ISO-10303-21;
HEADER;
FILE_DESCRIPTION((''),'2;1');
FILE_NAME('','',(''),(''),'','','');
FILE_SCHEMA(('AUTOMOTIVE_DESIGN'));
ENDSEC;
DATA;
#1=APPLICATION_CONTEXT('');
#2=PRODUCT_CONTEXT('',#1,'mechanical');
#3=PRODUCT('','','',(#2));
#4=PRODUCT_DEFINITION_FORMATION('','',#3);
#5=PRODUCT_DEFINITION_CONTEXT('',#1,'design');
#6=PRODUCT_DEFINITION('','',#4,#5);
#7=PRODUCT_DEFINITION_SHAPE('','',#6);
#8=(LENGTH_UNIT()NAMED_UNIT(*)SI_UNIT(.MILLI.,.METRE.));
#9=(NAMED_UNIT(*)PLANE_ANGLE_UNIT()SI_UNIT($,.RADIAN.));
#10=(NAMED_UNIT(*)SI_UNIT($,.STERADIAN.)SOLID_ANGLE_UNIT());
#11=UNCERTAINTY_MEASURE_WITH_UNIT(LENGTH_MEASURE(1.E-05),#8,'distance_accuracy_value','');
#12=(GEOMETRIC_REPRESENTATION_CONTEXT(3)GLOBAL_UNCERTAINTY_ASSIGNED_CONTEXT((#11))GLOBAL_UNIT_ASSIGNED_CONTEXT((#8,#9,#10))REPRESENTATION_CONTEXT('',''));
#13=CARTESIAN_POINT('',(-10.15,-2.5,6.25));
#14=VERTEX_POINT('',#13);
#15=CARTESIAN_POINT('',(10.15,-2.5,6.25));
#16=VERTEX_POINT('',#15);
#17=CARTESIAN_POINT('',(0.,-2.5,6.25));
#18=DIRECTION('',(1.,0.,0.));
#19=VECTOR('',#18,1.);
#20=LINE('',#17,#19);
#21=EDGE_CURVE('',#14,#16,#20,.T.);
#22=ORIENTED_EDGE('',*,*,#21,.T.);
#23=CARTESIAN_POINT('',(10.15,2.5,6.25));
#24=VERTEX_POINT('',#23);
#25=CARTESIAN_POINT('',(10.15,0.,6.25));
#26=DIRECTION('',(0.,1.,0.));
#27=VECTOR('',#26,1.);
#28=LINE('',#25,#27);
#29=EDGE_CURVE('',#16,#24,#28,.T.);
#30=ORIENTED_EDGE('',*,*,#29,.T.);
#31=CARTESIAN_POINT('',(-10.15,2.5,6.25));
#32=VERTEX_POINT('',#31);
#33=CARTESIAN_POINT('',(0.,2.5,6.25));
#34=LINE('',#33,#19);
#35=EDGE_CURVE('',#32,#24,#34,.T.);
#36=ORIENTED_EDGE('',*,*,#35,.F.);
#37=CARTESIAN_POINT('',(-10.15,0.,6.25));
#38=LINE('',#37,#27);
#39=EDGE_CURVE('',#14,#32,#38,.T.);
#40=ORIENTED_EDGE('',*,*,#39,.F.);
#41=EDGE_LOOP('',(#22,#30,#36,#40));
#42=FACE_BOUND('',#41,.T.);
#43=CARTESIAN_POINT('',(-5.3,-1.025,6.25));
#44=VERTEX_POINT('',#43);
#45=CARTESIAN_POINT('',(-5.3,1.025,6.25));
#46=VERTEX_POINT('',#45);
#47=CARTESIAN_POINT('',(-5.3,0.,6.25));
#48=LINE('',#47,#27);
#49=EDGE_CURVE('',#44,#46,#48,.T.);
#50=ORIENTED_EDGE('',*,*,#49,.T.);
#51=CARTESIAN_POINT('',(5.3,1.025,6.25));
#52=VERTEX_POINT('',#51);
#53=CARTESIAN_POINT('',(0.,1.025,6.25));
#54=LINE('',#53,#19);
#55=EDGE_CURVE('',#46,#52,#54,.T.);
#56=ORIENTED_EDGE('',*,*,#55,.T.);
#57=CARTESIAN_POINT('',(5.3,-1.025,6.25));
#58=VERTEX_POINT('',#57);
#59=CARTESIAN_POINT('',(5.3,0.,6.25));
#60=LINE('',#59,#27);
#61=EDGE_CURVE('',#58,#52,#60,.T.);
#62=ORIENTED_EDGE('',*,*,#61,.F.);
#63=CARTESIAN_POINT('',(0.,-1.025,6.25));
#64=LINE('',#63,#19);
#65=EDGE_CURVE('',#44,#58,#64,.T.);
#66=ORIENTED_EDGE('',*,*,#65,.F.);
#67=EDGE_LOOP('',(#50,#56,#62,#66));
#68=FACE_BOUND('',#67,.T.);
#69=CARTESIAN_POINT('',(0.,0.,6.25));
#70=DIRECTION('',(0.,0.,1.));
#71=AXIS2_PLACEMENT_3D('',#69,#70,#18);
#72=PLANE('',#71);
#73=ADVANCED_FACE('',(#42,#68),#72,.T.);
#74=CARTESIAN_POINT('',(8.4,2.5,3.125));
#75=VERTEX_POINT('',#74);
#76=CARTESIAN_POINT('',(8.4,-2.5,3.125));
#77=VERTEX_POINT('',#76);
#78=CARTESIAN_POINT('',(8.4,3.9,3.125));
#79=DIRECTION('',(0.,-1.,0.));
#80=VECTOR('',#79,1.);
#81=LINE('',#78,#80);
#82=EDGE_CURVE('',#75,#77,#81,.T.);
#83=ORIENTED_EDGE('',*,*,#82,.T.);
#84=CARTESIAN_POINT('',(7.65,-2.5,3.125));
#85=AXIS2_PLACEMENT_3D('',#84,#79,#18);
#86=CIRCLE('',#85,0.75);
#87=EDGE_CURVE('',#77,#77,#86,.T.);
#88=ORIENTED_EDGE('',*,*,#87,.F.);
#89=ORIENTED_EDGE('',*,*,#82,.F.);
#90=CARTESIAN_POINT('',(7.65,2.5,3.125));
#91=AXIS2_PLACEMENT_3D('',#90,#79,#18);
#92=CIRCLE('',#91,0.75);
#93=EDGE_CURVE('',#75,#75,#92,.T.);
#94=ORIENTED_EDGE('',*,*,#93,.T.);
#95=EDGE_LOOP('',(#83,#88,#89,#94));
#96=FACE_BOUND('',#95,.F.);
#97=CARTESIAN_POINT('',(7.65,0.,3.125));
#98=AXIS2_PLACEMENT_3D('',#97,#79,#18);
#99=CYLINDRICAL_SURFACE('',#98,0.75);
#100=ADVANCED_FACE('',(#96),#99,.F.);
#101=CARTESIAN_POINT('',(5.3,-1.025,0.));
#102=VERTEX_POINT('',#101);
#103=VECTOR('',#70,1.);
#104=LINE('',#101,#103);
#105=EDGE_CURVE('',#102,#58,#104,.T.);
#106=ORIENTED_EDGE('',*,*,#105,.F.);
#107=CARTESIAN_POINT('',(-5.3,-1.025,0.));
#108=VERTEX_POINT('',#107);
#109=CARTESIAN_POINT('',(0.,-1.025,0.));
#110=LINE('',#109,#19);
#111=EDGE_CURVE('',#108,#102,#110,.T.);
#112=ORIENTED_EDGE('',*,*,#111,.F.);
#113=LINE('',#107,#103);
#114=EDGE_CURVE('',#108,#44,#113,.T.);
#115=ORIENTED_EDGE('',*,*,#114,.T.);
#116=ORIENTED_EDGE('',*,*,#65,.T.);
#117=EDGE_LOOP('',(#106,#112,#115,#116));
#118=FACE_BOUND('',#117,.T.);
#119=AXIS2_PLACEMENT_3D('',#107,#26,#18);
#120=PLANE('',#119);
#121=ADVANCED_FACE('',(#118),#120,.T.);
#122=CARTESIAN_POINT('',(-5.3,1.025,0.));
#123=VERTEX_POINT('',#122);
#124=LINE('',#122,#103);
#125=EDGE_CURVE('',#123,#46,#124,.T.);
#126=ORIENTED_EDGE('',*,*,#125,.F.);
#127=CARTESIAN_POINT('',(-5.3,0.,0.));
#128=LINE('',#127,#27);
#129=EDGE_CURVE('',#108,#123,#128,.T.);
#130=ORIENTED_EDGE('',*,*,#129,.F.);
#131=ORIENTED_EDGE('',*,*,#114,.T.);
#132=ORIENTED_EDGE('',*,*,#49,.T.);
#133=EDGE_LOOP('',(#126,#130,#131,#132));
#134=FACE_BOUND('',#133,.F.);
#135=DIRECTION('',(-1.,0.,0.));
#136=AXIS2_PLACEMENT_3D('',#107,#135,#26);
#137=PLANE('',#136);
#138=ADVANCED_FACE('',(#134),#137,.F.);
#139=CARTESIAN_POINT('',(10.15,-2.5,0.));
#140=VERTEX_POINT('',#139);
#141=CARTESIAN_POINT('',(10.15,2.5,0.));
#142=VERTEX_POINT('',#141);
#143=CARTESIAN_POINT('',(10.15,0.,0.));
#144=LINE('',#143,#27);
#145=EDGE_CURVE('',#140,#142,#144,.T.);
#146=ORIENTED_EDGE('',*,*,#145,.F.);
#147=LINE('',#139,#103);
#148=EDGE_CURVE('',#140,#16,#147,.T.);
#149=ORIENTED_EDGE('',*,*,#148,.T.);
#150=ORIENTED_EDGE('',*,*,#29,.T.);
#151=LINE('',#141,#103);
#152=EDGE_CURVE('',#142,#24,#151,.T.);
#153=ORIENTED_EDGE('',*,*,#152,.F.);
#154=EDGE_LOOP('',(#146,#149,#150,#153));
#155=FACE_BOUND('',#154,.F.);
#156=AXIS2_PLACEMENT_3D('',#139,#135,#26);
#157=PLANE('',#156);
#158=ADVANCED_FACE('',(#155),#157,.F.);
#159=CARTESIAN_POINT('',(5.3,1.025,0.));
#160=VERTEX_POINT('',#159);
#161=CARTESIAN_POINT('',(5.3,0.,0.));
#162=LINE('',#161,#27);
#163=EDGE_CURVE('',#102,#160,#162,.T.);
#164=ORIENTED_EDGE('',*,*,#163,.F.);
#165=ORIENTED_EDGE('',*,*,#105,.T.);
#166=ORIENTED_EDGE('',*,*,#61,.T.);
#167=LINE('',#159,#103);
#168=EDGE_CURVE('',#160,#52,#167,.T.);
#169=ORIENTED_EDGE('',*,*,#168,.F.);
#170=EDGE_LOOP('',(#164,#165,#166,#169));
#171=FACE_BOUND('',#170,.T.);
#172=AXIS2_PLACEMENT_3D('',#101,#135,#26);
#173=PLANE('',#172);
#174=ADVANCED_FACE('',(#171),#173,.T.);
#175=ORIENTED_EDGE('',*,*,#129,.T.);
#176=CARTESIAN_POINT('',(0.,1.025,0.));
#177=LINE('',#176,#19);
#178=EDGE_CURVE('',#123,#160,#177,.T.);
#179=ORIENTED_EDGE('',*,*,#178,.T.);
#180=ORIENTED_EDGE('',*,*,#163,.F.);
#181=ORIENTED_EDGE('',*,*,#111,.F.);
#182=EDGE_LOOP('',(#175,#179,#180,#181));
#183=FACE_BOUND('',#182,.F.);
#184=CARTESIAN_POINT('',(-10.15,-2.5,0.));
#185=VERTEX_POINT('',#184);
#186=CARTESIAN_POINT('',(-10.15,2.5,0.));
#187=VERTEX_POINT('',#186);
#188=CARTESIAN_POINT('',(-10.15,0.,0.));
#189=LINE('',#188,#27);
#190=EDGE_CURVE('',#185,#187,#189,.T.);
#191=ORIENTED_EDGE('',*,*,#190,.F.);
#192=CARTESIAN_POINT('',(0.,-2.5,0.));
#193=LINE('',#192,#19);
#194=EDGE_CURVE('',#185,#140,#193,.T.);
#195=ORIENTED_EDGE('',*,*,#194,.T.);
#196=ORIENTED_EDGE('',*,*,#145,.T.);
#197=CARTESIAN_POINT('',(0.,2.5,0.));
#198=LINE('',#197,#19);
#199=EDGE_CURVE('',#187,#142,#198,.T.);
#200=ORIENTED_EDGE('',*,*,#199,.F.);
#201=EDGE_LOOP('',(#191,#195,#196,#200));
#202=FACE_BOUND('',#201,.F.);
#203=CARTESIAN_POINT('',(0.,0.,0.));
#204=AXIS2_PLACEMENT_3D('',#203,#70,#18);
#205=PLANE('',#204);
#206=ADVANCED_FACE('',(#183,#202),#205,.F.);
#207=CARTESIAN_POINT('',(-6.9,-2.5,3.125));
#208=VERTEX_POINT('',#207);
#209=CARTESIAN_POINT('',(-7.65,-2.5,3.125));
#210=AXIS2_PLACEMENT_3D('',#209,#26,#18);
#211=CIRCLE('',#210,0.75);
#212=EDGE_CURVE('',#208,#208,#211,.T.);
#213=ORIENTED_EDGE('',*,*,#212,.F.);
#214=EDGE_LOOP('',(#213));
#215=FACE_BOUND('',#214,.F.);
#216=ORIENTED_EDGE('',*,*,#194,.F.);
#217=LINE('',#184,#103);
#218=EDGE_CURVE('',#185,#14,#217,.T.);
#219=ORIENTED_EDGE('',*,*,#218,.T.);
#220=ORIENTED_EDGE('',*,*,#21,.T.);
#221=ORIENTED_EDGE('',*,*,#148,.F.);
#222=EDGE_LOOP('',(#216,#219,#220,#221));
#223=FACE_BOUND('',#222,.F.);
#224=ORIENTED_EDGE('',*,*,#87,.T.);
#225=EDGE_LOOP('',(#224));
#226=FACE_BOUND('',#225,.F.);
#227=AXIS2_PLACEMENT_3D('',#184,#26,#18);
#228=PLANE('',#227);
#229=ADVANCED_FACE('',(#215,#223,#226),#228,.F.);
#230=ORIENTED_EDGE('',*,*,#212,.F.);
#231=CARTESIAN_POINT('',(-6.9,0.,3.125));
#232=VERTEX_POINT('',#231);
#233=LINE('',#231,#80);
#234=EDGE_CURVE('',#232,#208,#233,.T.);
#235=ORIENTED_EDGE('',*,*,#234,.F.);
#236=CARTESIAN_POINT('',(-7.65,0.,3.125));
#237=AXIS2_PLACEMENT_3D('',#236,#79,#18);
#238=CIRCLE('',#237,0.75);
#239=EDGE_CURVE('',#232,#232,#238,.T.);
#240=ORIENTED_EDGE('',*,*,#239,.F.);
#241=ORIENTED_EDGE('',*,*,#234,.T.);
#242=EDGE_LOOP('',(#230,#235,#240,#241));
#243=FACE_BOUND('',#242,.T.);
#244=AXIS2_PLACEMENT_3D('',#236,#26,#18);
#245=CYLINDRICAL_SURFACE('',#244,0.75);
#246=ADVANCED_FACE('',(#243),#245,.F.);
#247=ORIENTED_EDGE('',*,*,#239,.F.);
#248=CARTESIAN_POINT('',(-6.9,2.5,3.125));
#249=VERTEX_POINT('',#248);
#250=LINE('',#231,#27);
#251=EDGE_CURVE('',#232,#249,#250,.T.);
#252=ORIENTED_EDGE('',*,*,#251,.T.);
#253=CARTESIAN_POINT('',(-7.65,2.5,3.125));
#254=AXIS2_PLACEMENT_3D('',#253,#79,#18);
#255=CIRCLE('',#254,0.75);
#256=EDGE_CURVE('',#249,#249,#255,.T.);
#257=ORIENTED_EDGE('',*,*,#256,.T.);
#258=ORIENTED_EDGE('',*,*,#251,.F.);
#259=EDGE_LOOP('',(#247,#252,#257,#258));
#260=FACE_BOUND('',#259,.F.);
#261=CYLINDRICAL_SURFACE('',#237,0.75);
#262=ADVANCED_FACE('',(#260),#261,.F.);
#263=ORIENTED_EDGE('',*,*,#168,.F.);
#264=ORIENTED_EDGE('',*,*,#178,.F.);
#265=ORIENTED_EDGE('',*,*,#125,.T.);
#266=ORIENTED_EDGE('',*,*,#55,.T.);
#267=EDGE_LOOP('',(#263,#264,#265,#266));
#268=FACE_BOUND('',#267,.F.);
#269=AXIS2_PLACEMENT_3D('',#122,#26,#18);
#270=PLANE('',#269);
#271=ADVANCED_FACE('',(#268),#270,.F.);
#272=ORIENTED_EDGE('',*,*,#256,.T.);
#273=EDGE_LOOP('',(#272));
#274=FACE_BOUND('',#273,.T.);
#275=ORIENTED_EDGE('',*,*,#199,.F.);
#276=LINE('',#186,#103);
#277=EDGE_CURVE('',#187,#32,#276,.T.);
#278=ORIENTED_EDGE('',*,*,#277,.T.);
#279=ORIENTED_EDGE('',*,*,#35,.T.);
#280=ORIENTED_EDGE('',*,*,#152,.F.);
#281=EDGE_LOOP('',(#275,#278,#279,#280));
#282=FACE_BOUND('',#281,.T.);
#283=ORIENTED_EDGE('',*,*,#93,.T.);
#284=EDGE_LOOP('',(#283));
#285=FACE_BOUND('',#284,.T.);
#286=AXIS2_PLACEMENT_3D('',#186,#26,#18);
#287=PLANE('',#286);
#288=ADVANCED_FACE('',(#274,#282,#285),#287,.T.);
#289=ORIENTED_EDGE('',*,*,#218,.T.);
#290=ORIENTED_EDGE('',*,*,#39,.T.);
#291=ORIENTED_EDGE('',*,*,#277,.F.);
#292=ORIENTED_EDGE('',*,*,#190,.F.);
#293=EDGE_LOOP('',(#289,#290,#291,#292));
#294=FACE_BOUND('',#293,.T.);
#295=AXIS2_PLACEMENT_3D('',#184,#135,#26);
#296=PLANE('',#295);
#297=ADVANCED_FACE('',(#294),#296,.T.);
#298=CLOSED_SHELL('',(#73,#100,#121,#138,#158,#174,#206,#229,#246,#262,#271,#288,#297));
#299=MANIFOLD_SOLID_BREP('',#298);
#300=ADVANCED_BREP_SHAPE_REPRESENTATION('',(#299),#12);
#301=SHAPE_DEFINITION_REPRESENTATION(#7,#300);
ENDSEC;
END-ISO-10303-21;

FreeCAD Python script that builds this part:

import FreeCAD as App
import Part
import Sketcher
from FreeCAD import Vector

doc = App.newDocument("Part")
body = doc.addObject("PartDesign::Body", "Body")

# Sketch on XY plane
sketch1 = doc.addObject("Sketcher::SketchObject", "Sketch")
body.addObject(sketch1)
sketch1.AttachmentSupport = (doc.XY_Plane, [""])
sketch1.MapMode = "FlatFace"
sketch1.addGeometry([
    Part.LineSegment(Vector(-10.2, 2.5, 0), Vector(-10.2, -2.5, 0)),  # 0
    Part.LineSegment(Vector(-10.2, -2.5, 0), Vector(10.2, -2.5, 0)),  # 1
    Part.LineSegment(Vector(10.2, -2.5, 0), Vector(10.2, 2.5, 0)),  # 2
    Part.LineSegment(Vector(10.2, 2.5, 0), Vector(-10.2, 2.5, 0)),  # 3
    Part.LineSegment(Vector(5.3, -1, 0), Vector(-5.3, -1, 0)),  # 4
    Part.LineSegment(Vector(-5.3, -1, 0), Vector(-5.3, 1, 0)),  # 5
    Part.LineSegment(Vector(-5.3, 1, 0), Vector(5.3, 1, 0)),  # 6
    Part.LineSegment(Vector(5.3, 1, 0), Vector(5.3, -1, 0)),  # 7
], False)
sketch1.addConstraint([
    Sketcher.Constraint("Coincident", 0, 2, 1, 1),
    Sketcher.Constraint("Coincident", 1, 2, 2, 1),
    Sketcher.Constraint("Coincident", 2, 2, 3, 1),
    Sketcher.Constraint("Coincident", 3, 2, 0, 1),
    Sketcher.Constraint("Coincident", 4, 2, 5, 1),
    Sketcher.Constraint("Coincident", 5, 2, 6, 1),
    Sketcher.Constraint("Coincident", 6, 2, 7, 1),
    Sketcher.Constraint("Coincident", 7, 2, 4, 1),
    Sketcher.Constraint("Vertical", 0),
    Sketcher.Constraint("Horizontal", 1),
    Sketcher.Constraint("Vertical", 2),
    Sketcher.Constraint("Horizontal", 3),
    Sketcher.Constraint("Horizontal", 4),
    Sketcher.Constraint("Vertical", 5),
    Sketcher.Constraint("Horizontal", 6),
    Sketcher.Constraint("Vertical", 7),
    Sketcher.Constraint("Symmetric", 0, 2, 2, 2, -1, 1),
    Sketcher.Constraint("Symmetric", 4, 2, 6, 2, -1, 1),
    Sketcher.Constraint("DistanceY", 0, 2, 0, 1, 5.0),
    Sketcher.Constraint("DistanceX", 1, 1, 1, 2, 20.3),
    Sketcher.Constraint("DistanceX", 4, 2, 4, 1, 10.6),
    Sketcher.Constraint("DistanceY", 5, 1, 5, 2, 2.05),
])
pad1 = doc.addObject("PartDesign::Pad", "Pad")
body.addObject(pad1)
pad1.Profile = sketch1
pad1.Length = 6.25

# Sketch on XZ plane
sketch2 = doc.addObject("Sketcher::SketchObject", "Sketch001")
body.addObject(sketch2)
sketch2.AttachmentSupport = (doc.XZ_Plane, [""])
sketch2.MapMode = "FlatFace"
sketch2.addGeometry([
    Part.Circle(Vector(-7.7, 3.1, 0), Vector(0, 0, 1), 0.8),
    Part.Circle(Vector(7.7, 3.1, 0), Vector(0, 0, 1), 0.8),
], False)
sketch2.addConstraint([
    Sketcher.Constraint("Equal", 0, 1),
    Sketcher.Constraint("Symmetric", 0, 3, 1, 3, -2),
    Sketcher.Constraint("Diameter", 0, 1.5),
    Sketcher.Constraint("DistanceX", 0, 3, 1, 3, 15.3),
    Sketcher.Constraint("DistanceY", -1, 1, 0, 3, 3.125),
])
pocket1 = doc.addObject("PartDesign::Pocket", "Pocket")
body.addObject(pocket1)
pocket1.Profile = sketch2
pocket1.Length = 7.8
pocket1.Midplane = True

doc.recompute()
